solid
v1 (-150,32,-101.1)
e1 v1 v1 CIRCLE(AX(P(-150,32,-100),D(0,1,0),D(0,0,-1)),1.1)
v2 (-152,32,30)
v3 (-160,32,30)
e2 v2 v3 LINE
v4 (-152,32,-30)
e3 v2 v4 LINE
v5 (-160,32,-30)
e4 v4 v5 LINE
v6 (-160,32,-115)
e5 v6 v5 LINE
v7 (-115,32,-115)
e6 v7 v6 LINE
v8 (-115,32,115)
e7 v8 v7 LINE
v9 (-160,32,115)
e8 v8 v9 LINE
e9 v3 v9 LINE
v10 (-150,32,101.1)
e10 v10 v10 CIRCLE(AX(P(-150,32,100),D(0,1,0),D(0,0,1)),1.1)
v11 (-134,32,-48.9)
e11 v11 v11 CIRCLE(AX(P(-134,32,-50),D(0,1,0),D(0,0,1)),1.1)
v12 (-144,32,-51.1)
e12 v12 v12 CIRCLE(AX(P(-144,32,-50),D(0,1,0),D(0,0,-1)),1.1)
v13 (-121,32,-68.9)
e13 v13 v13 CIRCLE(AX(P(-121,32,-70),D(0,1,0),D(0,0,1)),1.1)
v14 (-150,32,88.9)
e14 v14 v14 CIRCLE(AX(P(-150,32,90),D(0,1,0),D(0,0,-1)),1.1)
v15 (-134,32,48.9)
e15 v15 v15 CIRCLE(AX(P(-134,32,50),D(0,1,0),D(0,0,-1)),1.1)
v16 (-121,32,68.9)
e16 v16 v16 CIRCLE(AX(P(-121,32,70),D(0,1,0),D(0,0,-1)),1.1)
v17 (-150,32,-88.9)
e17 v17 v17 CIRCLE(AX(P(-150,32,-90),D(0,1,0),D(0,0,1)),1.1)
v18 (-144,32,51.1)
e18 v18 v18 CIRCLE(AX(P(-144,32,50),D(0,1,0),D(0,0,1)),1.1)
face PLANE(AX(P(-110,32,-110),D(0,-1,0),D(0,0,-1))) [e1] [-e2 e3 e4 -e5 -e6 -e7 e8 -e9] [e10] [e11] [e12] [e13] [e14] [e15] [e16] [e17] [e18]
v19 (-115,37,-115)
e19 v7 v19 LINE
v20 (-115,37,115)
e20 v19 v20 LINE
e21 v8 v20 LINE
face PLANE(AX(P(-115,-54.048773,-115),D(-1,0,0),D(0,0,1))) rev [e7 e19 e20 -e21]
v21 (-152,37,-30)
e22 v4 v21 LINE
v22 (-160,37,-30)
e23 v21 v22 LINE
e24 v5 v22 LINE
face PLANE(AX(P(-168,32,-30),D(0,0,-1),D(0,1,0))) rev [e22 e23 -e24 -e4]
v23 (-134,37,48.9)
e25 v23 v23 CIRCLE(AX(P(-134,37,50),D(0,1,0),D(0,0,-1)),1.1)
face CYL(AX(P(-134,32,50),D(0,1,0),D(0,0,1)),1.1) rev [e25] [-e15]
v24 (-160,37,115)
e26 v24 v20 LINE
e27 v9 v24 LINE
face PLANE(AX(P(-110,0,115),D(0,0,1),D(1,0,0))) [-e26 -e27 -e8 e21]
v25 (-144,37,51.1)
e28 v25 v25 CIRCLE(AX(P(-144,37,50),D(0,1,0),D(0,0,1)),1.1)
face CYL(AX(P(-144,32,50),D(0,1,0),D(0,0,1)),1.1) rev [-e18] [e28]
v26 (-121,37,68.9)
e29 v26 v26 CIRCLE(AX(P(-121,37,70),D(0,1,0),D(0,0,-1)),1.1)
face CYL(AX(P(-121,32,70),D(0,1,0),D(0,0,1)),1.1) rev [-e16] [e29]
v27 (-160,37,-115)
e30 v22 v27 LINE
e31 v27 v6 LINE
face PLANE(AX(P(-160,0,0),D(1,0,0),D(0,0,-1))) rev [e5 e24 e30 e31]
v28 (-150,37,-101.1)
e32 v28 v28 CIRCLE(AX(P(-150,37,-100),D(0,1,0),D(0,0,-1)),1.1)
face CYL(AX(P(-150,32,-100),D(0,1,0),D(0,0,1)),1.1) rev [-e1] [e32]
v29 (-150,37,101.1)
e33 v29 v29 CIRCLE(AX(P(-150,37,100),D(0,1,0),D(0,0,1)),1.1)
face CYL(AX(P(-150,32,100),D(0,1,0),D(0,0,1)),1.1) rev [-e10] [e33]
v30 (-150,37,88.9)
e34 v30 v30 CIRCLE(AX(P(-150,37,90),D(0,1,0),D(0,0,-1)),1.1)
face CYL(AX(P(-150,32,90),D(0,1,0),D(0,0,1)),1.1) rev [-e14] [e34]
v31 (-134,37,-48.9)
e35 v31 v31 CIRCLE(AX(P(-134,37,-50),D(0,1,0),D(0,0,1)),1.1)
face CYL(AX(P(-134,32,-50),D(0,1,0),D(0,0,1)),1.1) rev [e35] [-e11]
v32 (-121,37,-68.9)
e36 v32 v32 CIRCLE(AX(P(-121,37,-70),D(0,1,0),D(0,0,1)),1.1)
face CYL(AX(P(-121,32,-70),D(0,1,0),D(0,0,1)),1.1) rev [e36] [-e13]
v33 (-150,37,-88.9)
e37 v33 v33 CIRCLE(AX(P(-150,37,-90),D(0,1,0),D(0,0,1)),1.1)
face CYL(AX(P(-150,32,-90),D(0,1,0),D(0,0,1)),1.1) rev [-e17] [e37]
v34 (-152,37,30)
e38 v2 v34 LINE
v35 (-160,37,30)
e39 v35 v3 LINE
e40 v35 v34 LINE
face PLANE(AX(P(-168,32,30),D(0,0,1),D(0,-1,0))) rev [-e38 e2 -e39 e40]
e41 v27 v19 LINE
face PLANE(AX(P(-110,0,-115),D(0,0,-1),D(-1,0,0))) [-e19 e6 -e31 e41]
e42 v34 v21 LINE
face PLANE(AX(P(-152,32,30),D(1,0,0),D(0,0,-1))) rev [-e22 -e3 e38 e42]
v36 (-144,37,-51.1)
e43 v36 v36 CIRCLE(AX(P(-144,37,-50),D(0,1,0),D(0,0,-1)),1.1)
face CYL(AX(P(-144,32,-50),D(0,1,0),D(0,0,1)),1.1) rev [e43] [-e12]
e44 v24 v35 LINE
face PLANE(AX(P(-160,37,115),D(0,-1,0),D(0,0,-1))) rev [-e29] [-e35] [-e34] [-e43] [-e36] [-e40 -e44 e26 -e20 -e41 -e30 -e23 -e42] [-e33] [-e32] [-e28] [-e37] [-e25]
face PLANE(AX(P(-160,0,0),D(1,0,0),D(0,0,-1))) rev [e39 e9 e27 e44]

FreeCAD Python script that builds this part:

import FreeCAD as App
import Part
import Sketcher
from FreeCAD import Vector


def edges_at(feature, points):
    """Names of the edges that pass closest to the given points."""
    edges = feature.Shape.Edges
    near = lambda p: min(range(len(edges)), key=lambda i: edges[i].distToShape(Part.Vertex(*p))[0])
    return sorted({f"Edge{near(p) + 1}" for p in points})


def add_polygon(sketch, points):
    """Adds a closed chain of lines whose ends are joined by coincident constraints."""
    first, n = sketch.GeometryCount, len(points)
    for a, b in zip(points, points[1:] + points[:1]):
        sketch.addGeometry(Part.LineSegment(App.Vector(*a, 0), App.Vector(*b, 0)), False)
    for i in range(n):
        sketch.addConstraint(Sketcher.Constraint("Coincident", first + i, 2, first + (i + 1) % n, 1))

doc = App.newDocument("Part")
body = doc.addObject("PartDesign::Body", "Body")

sketch1 = body.newObject("Sketcher::SketchObject", "Sketch")
sketch1.AttachmentSupport = (doc.getObject("YZ_Plane"), [""])
sketch1.MapMode = "FlatFace"
add_polygon(sketch1, [(110, 115), (0, 115), (0, 110), (110, 110)])
sketch1.addConstraint(Sketcher.Constraint("Horizontal", 0))
sketch1.addConstraint(Sketcher.Constraint("Vertical", 1))
sketch1.addConstraint(Sketcher.Constraint("Horizontal", 2))
sketch1.addConstraint(Sketcher.Constraint("Vertical", 3))
sketch1.addConstraint(Sketcher.Constraint("PointOnObject", 0, 2, -2))
sketch1.addConstraint(Sketcher.Constraint("DistanceX", 0, 2, 0, 1, 110.0))
sketch1.addConstraint(Sketcher.Constraint("DistanceY", 1, 2, 1, 1, 5.0))
sketch1.addConstraint(Sketcher.Constraint("DistanceY", -1, 1, 0, 2, 115.0))
pad1 = body.newObject("PartDesign::Pad", "Pad")
pad1.Profile = sketch1
pad1.Type = "TwoLengths"
pad1.Length = 120
pad1.Length2 = 110
body2 = doc.addObject("PartDesign::Body", "Body001")

sketch2 = body2.newObject("Sketcher::SketchObject", "Sketch001")
sketch2.AttachmentSupport = (doc.getObject("YZ_Plane001"), [""])
sketch2.MapMode = "FlatFace"
add_polygon(sketch2, [(110, -110), (0, -110), (0, -115), (110, -115)])
sketch2.addConstraint(Sketcher.Constraint("Horizontal", 0))
sketch2.addConstraint(Sketcher.Constraint("Vertical", 1))
sketch2.addConstraint(Sketcher.Constraint("Horizontal", 2))
sketch2.addConstraint(Sketcher.Constraint("Vertical", 3))
sketch2.addConstraint(Sketcher.Constraint("PointOnObject", 0, 2, -2))
sketch2.addConstraint(Sketcher.Constraint("DistanceX", 0, 2, 0, 1, 110.0))
sketch2.addConstraint(Sketcher.Constraint("DistanceY", 1, 2, 1, 1, 5.0))
sketch2.addConstraint(Sketcher.Constraint("DistanceY", 0, 2, -1, 1, 110.0))
pad2 = body2.newObject("PartDesign::Pad", "Pad001")
pad2.Profile = sketch2
pad2.Type = "TwoLengths"
pad2.Length = 120
pad2.Length2 = 110
body.AllowCompound = True
doc.recompute()

boolean = body.newObject("PartDesign::Boolean", "Boolean")
boolean.Type = "Fuse"
boolean.addObjects([body2])

sketch3 = body.newObject("Sketcher::SketchObject", "Sketch002")
sketch3.AttachmentSupport = (doc.getObject("YZ_Plane"), [""])
sketch3.MapMode = "FlatFace"
sketch3.AttachmentOffset = App.Placement(Vector(0, 0, -110), App.Rotation())
add_polygon(sketch3, [(37, -115), (0, -115), (0, -110), (37, -110)])
add_polygon(sketch3, [(37, 110), (0, 110), (0, 115), (37, 115)])
sketch3.addConstraint(Sketcher.Constraint("Horizontal", 0))
sketch3.addConstraint(Sketcher.Constraint("Vertical", 1))
sketch3.addConstraint(Sketcher.Constraint("Horizontal", 2))
sketch3.addConstraint(Sketcher.Constraint("Vertical", 3))
sketch3.addConstraint(Sketcher.Constraint("Horizontal", 4))
sketch3.addConstraint(Sketcher.Constraint("Vertical", 5))
sketch3.addConstraint(Sketcher.Constraint("Horizontal", 6))
sketch3.addConstraint(Sketcher.Constraint("Vertical", 7))
sketch3.addConstraint(Sketcher.Constraint("Symmetric", 1, 2, 4, 2, -1, 1))
sketch3.addConstraint(Sketcher.Constraint("Symmetric", 0, 2, 5, 2, -1))
sketch3.addConstraint(Sketcher.Constraint("Vertical", 3, 2, 6, 2))
sketch3.addConstraint(Sketcher.Constraint("DistanceX", 0, 2, 0, 1, 37.0))
sketch3.addConstraint(Sketcher.Constraint("DistanceY", 1, 1, 1, 2, 5.0))
sketch3.addConstraint(Sketcher.Constraint("DistanceY", 0, 2, -1, 1, 115.0))
pad3 = body.newObject("PartDesign::Pad", "Pad002")
pad3.Profile = sketch3
pad3.Length = 50
pad3.Reversed = True

sketch4 = body.newObject("Sketcher::SketchObject", "Sketch003")
sketch4.AttachmentSupport = (doc.getObject("YZ_Plane"), [""])
sketch4.MapMode = "FlatFace"
sketch4.AttachmentOffset = App.Placement(Vector(0, 0, -160), App.Rotation())
add_polygon(sketch4, [(37, -110), (32, -110), (32, 110), (37, 110)])
sketch4.addConstraint(Sketcher.Constraint("Horizontal", 0))
sketch4.addConstraint(Sketcher.Constraint("Vertical", 1))
sketch4.addConstraint(Sketcher.Constraint("Horizontal", 2))
sketch4.addConstraint(Sketcher.Constraint("Vertical", 3))
sketch4.addConstraint(Sketcher.Constraint("DistanceX", 0, 2, 0, 1, 5.0))
sketch4.addConstraint(Sketcher.Constraint("DistanceY", 1, 1, 1, 2, 220.0))
sketch4.addConstraint(Sketcher.Constraint("DistanceX", -1, 1, 0, 2, 32.0))
sketch4.addConstraint(Sketcher.Constraint("DistanceY", 0, 2, -1, 1, 110.0))
pad4 = body.newObject("PartDesign::Pad", "Pad003")
pad4.Profile = sketch4
pad4.Length = 50

sketch5 = body.newObject("Sketcher::SketchObject", "Sketch004")
sketch5.AttachmentSupport = (doc.getObject("YZ_Plane"), [""])
sketch5.MapMode = "FlatFace"
sketch5.AttachmentOffset = App.Placement(Vector(0, 0, -110), App.Rotation())
add_polygon(sketch5, [(110, -115), (37, -115), (37, 115), (110, 115)])
sketch5.addConstraint(Sketcher.Constraint("Horizontal", 0))
sketch5.addConstraint(Sketcher.Constraint("Vertical", 1))
sketch5.addConstraint(Sketcher.Constraint("Horizontal", 2))
sketch5.addConstraint(Sketcher.Constraint("Vertical", 3))
sketch5.addConstraint(Sketcher.Constraint("DistanceX", 0, 2, 0, 1, 73.0))
sketch5.addConstraint(Sketcher.Constraint("DistanceY", 1, 1, 1, 2, 230.0))
sketch5.addConstraint(Sketcher.Constraint("DistanceX", -1, 1, 0, 2, 37.0))
sketch5.addConstraint(Sketcher.Constraint("DistanceY", 0, 2, -1, 1, 115.0))
pad5 = body.newObject("PartDesign::Pad", "Pad004")
pad5.Profile = sketch5
pad5.Length = 5
pad5.Reversed = True

sketch6 = body.newObject("Sketcher::SketchObject", "Sketch005")
sketch6.AttachmentSupport = (doc.getObject("XY_Plane"), [""])
sketch6.MapMode = "FlatFace"
sketch6.AttachmentOffset = App.Placement(Vector(0, 0, 115), App.Rotation())
add_polygon(sketch6, [(120, 110), (116, 106), (120, 103)])
sketch6.addConstraint(Sketcher.Constraint("Vertical", 2))
sketch6.addConstraint(Sketcher.Constraint("Perpendicular", 0, 1))
sketch6.addConstraint(Sketcher.Constraint("Equal", 0, 1))
sketch6.addConstraint(Sketcher.Constraint("Distance", 0, 5.0))
sketch6.addConstraint(Sketcher.Constraint("DistanceX", -1, 1, 1, 2, 120.0))
sketch6.addConstraint(Sketcher.Constraint("DistanceY", -1, 1, 2, 2, 110.0))
pocket1 = body.newObject("PartDesign::Pocket", "Pocket")
pocket1.Profile = sketch6
pocket1.Type = "ThroughAll"

sketch7 = body.newObject("Sketcher::SketchObject", "Sketch006")
sketch7.AttachmentSupport = (doc.getObject("XY_Plane"), [""])
sketch7.MapMode = "FlatFace"
sketch7.AttachmentOffset = App.Placement(Vector(0, 0, 115), App.Rotation())
add_polygon(sketch7, [(120, 110), (111, 110), (111, 0), (120, 0), (120, 103), (116, 106)])
sketch7.addConstraint(Sketcher.Constraint("Horizontal", 0))
sketch7.addConstraint(Sketcher.Constraint("Vertical", 1))
sketch7.addConstraint(Sketcher.Constraint("Horizontal", 2))
sketch7.addConstraint(Sketcher.Constraint("Vertical", 3))
sketch7.addConstraint(Sketcher.Constraint("PointOnObject", 1, 2, -1))
sketch7.addConstraint(Sketcher.Constraint("Perpendicular", 4, 5))
sketch7.addConstraint(Sketcher.Constraint("Vertical", 3, 2, 5, 2))
sketch7.addConstraint(Sketcher.Constraint("Equal", 4, 5))
sketch7.addConstraint(Sketcher.Constraint("DistanceY", 1, 2, 1, 1, 110.0))
sketch7.addConstraint(Sketcher.Constraint("Distance", 4, 5.0))
sketch7.addConstraint(Sketcher.Constraint("DistanceX", -1, 1, 2, 2, 120.0))
sketch7.addConstraint(Sketcher.Constraint("DistanceX", 0, 2, 4, 2, 5.0))
pad6 = body.newObject("PartDesign::Pad", "Pad005")
pad6.Profile = sketch7
pad6.Length = 59
doc.recompute()

mirrored = body.newObject("PartDesign::Mirrored", "Mirrored")
mirrored.Originals = [pad6]
mirrored.MirrorPlane = (doc.getObject("XY_Plane"), [""])
body.Tip = mirrored
doc.recompute()

fillet = body.newObject("PartDesign::Fillet", "Fillet")
fillet.Base = (mirrored, edges_at(mirrored, [(111.464, 55, 115), (111.464, 55, -115)]))
fillet.Radius = 15
doc.recompute()

fillet2 = body.newObject("PartDesign::Fillet", "Fillet001")
fillet2.Base = (fillet, edges_at(fillet, [(111.464, 55, 174), (111.464, 55, -174)]))
fillet2.Radius = 3
body3 = doc.addObject("PartDesign::Body", "Body002")

sketch8 = body3.newObject("Sketcher::SketchObject", "Sketch007")
sketch8.Placement = App.Placement(Vector(115, 115, 0), App.Rotation(Vector(0, 0, 1), Vector(-0.707106781, 0.707106781, 0), Vector(-0.707106781, -0.707106781, 0), "ZXY"))
add_polygon(sketch8, [(-174, -7), (-174, -234), (174, -234), (174, -7)])
add_polygon(sketch8, [(164, -224), (-164, -224), (-164, -17), (164, -17)])
sketch8.addConstraint(Sketcher.Constraint("Vertical", 0))
sketch8.addConstraint(Sketcher.Constraint("Horizontal", 1))
sketch8.addConstraint(Sketcher.Constraint("Vertical", 2))
sketch8.addConstraint(Sketcher.Constraint("Horizontal", 3))
sketch8.addConstraint(Sketcher.Constraint("Horizontal", 4))
sketch8.addConstraint(Sketcher.Constraint("Vertical", 5))
sketch8.addConstraint(Sketcher.Constraint("Horizontal", 6))
sketch8.addConstraint(Sketcher.Constraint("Vertical", 7))
sketch8.addConstraint(Sketcher.Constraint("DistanceX", 1, 1, 1, 2, 348.0))
sketch8.addConstraint(Sketcher.Constraint("DistanceX", 4, 2, 4, 1, 328.0))
sketch8.addConstraint(Sketcher.Constraint("DistanceY", 0, 2, 0, 1, 227.0))
sketch8.addConstraint(Sketcher.Constraint("DistanceY", 5, 1, 5, 2, 207.0))
sketch8.addConstraint(Sketcher.Constraint("DistanceX", 0, 2, -1, 1, 174.0))
sketch8.addConstraint(Sketcher.Constraint("DistanceX", 4, 2, -1, 1, 164.0))
sketch8.addConstraint(Sketcher.Constraint("DistanceY", 0, 2, 4, 2, 10.0))
sketch8.addConstraint(Sketcher.Constraint("DistanceY", 0, 2, -1, 1, 234.071068))
pad7 = body3.newObject("PartDesign::Pad", "Pad006")
pad7.Profile = sketch8
pad7.Length = 5
body4 = doc.addObject("PartDesign::Body", "Body003")

sketch9 = body4.newObject("Sketcher::SketchObject", "Sketch008")
sketch9.AttachmentSupport = (doc.getObject("XY_Plane003"), [""])
sketch9.MapMode = "FlatFace"
sketch9.AttachmentOffset = App.Placement(Vector(0, 0, 174), App.Rotation())
add_polygon(sketch9, [(120, 0), (223, 0), (120, 103)])
sketch9.addConstraint(Sketcher.Constraint("Horizontal", 0))
sketch9.addConstraint(Sketcher.Constraint("Vertical", 2))
sketch9.addConstraint(Sketcher.Constraint("PointOnObject", 0, 2, -1))
sketch9.addConstraint(Sketcher.Constraint("Equal", 0, 2))
sketch9.addConstraint(Sketcher.Constraint("DistanceX", -1, 1, 1, 2, 120.0))
sketch9.addConstraint(Sketcher.Constraint("Distance", 1, 145.563492))
pad8 = body4.newObject("PartDesign::Pad", "Pad007")
pad8.Profile = sketch9
pad8.Length = 5
pad8.Reversed = True
body5 = doc.addObject("PartDesign::Body", "Body004")

sketch10 = body5.newObject("Sketcher::SketchObject", "Sketch009")
sketch10.AttachmentSupport = (doc.getObject("XY_Plane004"), [""])
sketch10.MapMode = "FlatFace"
sketch10.AttachmentOffset = App.Placement(Vector(0, 0, -174), App.Rotation())
add_polygon(sketch10, [(120, 0), (120, 103), (223, 0)])
sketch10.addConstraint(Sketcher.Constraint("Vertical", 0))
sketch10.addConstraint(Sketcher.Constraint("Horizontal", 2))
sketch10.addConstraint(Sketcher.Constraint("PointOnObject", 1, 2, -1))
sketch10.addConstraint(Sketcher.Constraint("Equal", 2, 0))
sketch10.addConstraint(Sketcher.Constraint("DistanceX", -1, 1, 0, 2, 120.0))
sketch10.addConstraint(Sketcher.Constraint("Distance", 1, 145.563492))
pad9 = body5.newObject("PartDesign::Pad", "Pad008")
pad9.Profile = sketch10
pad9.Length = 5
body6 = doc.addObject("PartDesign::Body", "Body005")

sketch11 = body6.newObject("Sketcher::SketchObject", "Sketch010")
sketch11.AttachmentSupport = (doc.getObject("XZ_Plane005"), [""])
sketch11.MapMode = "FlatFace"
sketch11.AttachmentOffset = App.Placement(Vector(0, 0, -110), App.Rotation())
add_polygon(sketch11, [(-115, -115), (-115, 115), (-167, 115), (-167, 201), (290, 201), (290, -194), (-167, -194), (-167, -115)])
sketch11.addConstraint(Sketcher.Constraint("Vertical", 0))
sketch11.addConstraint(Sketcher.Constraint("Horizontal", 1))
sketch11.addConstraint(Sketcher.Constraint("Vertical", 2))
sketch11.addConstraint(Sketcher.Constraint("Horizontal", 3))
sketch11.addConstraint(Sketcher.Constraint("Vertical", 4))
sketch11.addConstraint(Sketcher.Constraint("Horizontal", 5))
sketch11.addConstraint(Sketcher.Constraint("Vertical", 6))
sketch11.addConstraint(Sketcher.Constraint("Horizontal", 7))
sketch11.addConstraint(Sketcher.Constraint("Symmetric", 1, 2, 6, 2, -1))
sketch11.addConstraint(Sketcher.Constraint("DistanceY", 0, 1, 0, 2, 230.0))
sketch11.addConstraint(Sketcher.Constraint("DistanceX", 0, 2, -1, 1, 115.0))
sketch11.addConstraint(Sketcher.Constraint("DistanceX", 3, 1, 3, 2, 456.99429))
sketch11.addConstraint(Sketcher.Constraint("DistanceY", 2, 1, 2, 2, 85.602059))
sketch11.addConstraint(Sketcher.Constraint("DistanceX", 1, 2, 1, 1, 52.309958))
sketch11.addConstraint(Sketcher.Constraint("DistanceY", 4, 2, 4, 1, 394.363217))
pad10 = body6.newObject("PartDesign::Pad", "Pad009")
pad10.Profile = sketch11
pad10.Length = 165.048773
doc.recompute()

body7 = doc.addObject("PartDesign::Body", "Body006")
body7.BaseFeature = body6
boolean2 = body.newObject("PartDesign::Boolean", "Boolean001")
boolean2.Type = "Cut"
boolean2.addObjects([body7])
doc.recompute()

sketch12 = body.newObject("Sketcher::SketchObject", "Sketch011")
sketch12.AttachmentSupport = (doc.getObject("XY_Plane"), [""])
sketch12.MapMode = "FlatFace"
sketch12.AttachmentOffset = App.Placement(Vector(0, 0, 115), App.Rotation())
add_polygon(sketch12, [(-160, 32), (-160, 0), (-115, 0), (-115, 32)])
sketch12.addConstraint(Sketcher.Constraint("Vertical", 0))
sketch12.addConstraint(Sketcher.Constraint("Horizontal", 1))
sketch12.addConstraint(Sketcher.Constraint("Vertical", 2))
sketch12.addConstraint(Sketcher.Constraint("Horizontal", 3))
sketch12.addConstraint(Sketcher.Constraint("PointOnObject", 0, 2, -1))
sketch12.addConstraint(Sketcher.Constraint("DistanceX", 1, 1, 1, 2, 45.0))
sketch12.addConstraint(Sketcher.Constraint("DistanceY", 0, 2, 0, 1, 32.0))
sketch12.addConstraint(Sketcher.Constraint("DistanceX", 0, 2, -1, 1, 160.0))
pocket2 = body.newObject("PartDesign::Pocket", "Pocket001")
pocket2.Profile = sketch12
pocket2.Type = "ThroughAll"
pocket2.Midplane = True

sketch13 = body.newObject("Sketcher::SketchObject", "Sketch012")
sketch13.AttachmentSupport = (doc.getObject("XZ_Plane"), [""])
sketch13.MapMode = "FlatFace"
sketch13.AttachmentOffset = App.Placement(Vector(0, 0, -37), App.Rotation())
sketch13.addGeometry(Part.Circle(Vector(-150, 100, 0), Vector(0, 0, 1), 1.1), False)
sketch13.addGeometry(Part.Circle(Vector(-150, 90, 0), Vector(0, 0, 1), 1.1), False)
sketch13.addGeometry(Part.Circle(Vector(-150, -90, 0), Vector(0, 0, 1), 1.1), False)
sketch13.addGeometry(Part.Circle(Vector(-150, -100, 0), Vector(0, 0, 1), 1.1), False)
sketch13.addConstraint(Sketcher.Constraint("Equal", 0, 1))
sketch13.addConstraint(Sketcher.Constraint("Equal", 1, 2))
sketch13.addConstraint(Sketcher.Constraint("Equal", 2, 3))
sketch13.addConstraint(Sketcher.Constraint("Symmetric", 1, 3, 2, 3, -1))
sketch13.addConstraint(Sketcher.Constraint("Symmetric", 0, 3, 3, 3, -1))
sketch13.addConstraint(Sketcher.Constraint("Vertical", 0, 3, 1, 3))
sketch13.addConstraint(Sketcher.Constraint("Diameter", 0, 2.2))
sketch13.addConstraint(Sketcher.Constraint("DistanceX", 0, 3, -1, 1, 150.0))
sketch13.addConstraint(Sketcher.Constraint("DistanceY", -1, 1, 0, 3, 100.0))
sketch13.addConstraint(Sketcher.Constraint("DistanceY", -1, 1, 1, 3, 90.0))
pocket3 = body.newObject("PartDesign::Pocket", "Pocket002")
pocket3.Profile = sketch13
pocket3.Type = "ThroughAll"
pocket3.Reversed = True

sketch14 = body.newObject("Sketcher::SketchObject", "Sketch013")
sketch14.AttachmentSupport = (doc.getObject("XZ_Plane"), [""])
sketch14.MapMode = "FlatFace"
sketch14.AttachmentOffset = App.Placement(Vector(0, 0, -37), App.Rotation())
sketch14.addGeometry(Part.Circle(Vector(-121, -70, 0), Vector(0, 0, 1), 1.1), False)
sketch14.addGeometry(Part.Circle(Vector(-121, 70, 0), Vector(0, 0, 1), 1.1), False)
sketch14.addConstraint(Sketcher.Constraint("Equal", 0, 1))
sketch14.addConstraint(Sketcher.Constraint("Symmetric", 0, 3, 1, 3, -1))
sketch14.addConstraint(Sketcher.Constraint("Diameter", 0, 2.2))
sketch14.addConstraint(Sketcher.Constraint("DistanceX", 0, 3, -1, 1, 121.0))
sketch14.addConstraint(Sketcher.Constraint("DistanceY", 0, 3, -1, 1, 70.0))
pocket4 = body.newObject("PartDesign::Pocket", "Pocket003")
pocket4.Profile = sketch14
pocket4.Type = "ThroughAll"
pocket4.Reversed = True

sketch15 = body.newObject("Sketcher::SketchObject", "Sketch014")
sketch15.AttachmentSupport = (doc.getObject("XZ_Plane"), [""])
sketch15.MapMode = "FlatFace"
sketch15.AttachmentOffset = App.Placement(Vector(0, 0, -37), App.Rotation())
sketch15.addGeometry(Part.Circle(Vector(-134, -50, 0), Vector(0, 0, 1), 1.1), False)
sketch15.addGeometry(Part.Circle(Vector(-144, -50, 0), Vector(0, 0, 1), 1.1), False)
sketch15.addGeometry(Part.Circle(Vector(-144, 50, 0), Vector(0, 0, 1), 1.1), False)
sketch15.addGeometry(Part.Circle(Vector(-134, 50, 0), Vector(0, 0, 1), 1.1), False)
sketch15.addConstraint(Sketcher.Constraint("Equal", 0, 1))
sketch15.addConstraint(Sketcher.Constraint("Equal", 1, 2))
sketch15.addConstraint(Sketcher.Constraint("Equal", 2, 3))
sketch15.addConstraint(Sketcher.Constraint("Symmetric", 1, 3, 2, 3, -1))
sketch15.addConstraint(Sketcher.Constraint("Symmetric", 0, 3, 3, 3, -1))
sketch15.addConstraint(Sketcher.Constraint("Horizontal", 0, 3, 1, 3))
sketch15.addConstraint(Sketcher.Constraint("Diameter", 0, 2.2))
sketch15.addConstraint(Sketcher.Constraint("DistanceX", 0, 3, -1, 1, 134.0))
sketch15.addConstraint(Sketcher.Constraint("DistanceY", 0, 3, -1, 1, 50.0))
sketch15.addConstraint(Sketcher.Constraint("DistanceX", 1, 3, -1, 1, 144.0))
pocket5 = body.newObject("PartDesign::Pocket", "Pocket004")
pocket5.Profile = sketch15
pocket5.Type = "ThroughAll"
pocket5.Reversed = True

sketch16 = body.newObject("Sketcher::SketchObject", "Sketch015")
sketch16.AttachmentSupport = (doc.getObject("XZ_Plane"), [""])
sketch16.MapMode = "FlatFace"
sketch16.AttachmentOffset = App.Placement(Vector(0, 0, -37), App.Rotation())
add_polygon(sketch16, [(-168, -30), (-168, 30), (-152, 30), (-152, -30)])
sketch16.addConstraint(Sketcher.Constraint("Vertical", 0))
sketch16.addConstraint(Sketcher.Constraint("Horizontal", 1))
sketch16.addConstraint(Sketcher.Constraint("Vertical", 2))
sketch16.addConstraint(Sketcher.Constraint("Horizontal", 3))
sketch16.addConstraint(Sketcher.Constraint("DistanceX", 1, 1, 1, 2, 16.0))
sketch16.addConstraint(Sketcher.Constraint("DistanceY", 0, 1, 0, 2, 60.0))
sketch16.addConstraint(Sketcher.Constraint("DistanceX", 0, 2, -1, 1, 168.0))
sketch16.addConstraint(Sketcher.Constraint("DistanceY", -1, 1, 0, 2, 30.0))
pocket6 = body.newObject("PartDesign::Pocket", "Pocket005")
pocket6.Profile = sketch16
pocket6.Type = "ThroughAll"
pocket6.Reversed = True
doc.recompute()

body8 = doc.addObject("PartDesign::Body", "Body007")
body8.BaseFeature = body6
boolean3 = body3.newObject("PartDesign::Boolean", "Boolean002")
boolean3.Type = "Cut"
boolean3.addObjects([body8])
doc.recompute()

body9 = doc.addObject("PartDesign::Body", "Body008")
body9.BaseFeature = body6
boolean4 = body4.newObject("PartDesign::Boolean", "Boolean003")
boolean4.Type = "Cut"
boolean4.addObjects([body9])
doc.recompute()

boolean5 = body5.newObject("PartDesign::Boolean", "Boolean004")
boolean5.Type = "Cut"
boolean5.addObjects([body6])

doc.recompute()
